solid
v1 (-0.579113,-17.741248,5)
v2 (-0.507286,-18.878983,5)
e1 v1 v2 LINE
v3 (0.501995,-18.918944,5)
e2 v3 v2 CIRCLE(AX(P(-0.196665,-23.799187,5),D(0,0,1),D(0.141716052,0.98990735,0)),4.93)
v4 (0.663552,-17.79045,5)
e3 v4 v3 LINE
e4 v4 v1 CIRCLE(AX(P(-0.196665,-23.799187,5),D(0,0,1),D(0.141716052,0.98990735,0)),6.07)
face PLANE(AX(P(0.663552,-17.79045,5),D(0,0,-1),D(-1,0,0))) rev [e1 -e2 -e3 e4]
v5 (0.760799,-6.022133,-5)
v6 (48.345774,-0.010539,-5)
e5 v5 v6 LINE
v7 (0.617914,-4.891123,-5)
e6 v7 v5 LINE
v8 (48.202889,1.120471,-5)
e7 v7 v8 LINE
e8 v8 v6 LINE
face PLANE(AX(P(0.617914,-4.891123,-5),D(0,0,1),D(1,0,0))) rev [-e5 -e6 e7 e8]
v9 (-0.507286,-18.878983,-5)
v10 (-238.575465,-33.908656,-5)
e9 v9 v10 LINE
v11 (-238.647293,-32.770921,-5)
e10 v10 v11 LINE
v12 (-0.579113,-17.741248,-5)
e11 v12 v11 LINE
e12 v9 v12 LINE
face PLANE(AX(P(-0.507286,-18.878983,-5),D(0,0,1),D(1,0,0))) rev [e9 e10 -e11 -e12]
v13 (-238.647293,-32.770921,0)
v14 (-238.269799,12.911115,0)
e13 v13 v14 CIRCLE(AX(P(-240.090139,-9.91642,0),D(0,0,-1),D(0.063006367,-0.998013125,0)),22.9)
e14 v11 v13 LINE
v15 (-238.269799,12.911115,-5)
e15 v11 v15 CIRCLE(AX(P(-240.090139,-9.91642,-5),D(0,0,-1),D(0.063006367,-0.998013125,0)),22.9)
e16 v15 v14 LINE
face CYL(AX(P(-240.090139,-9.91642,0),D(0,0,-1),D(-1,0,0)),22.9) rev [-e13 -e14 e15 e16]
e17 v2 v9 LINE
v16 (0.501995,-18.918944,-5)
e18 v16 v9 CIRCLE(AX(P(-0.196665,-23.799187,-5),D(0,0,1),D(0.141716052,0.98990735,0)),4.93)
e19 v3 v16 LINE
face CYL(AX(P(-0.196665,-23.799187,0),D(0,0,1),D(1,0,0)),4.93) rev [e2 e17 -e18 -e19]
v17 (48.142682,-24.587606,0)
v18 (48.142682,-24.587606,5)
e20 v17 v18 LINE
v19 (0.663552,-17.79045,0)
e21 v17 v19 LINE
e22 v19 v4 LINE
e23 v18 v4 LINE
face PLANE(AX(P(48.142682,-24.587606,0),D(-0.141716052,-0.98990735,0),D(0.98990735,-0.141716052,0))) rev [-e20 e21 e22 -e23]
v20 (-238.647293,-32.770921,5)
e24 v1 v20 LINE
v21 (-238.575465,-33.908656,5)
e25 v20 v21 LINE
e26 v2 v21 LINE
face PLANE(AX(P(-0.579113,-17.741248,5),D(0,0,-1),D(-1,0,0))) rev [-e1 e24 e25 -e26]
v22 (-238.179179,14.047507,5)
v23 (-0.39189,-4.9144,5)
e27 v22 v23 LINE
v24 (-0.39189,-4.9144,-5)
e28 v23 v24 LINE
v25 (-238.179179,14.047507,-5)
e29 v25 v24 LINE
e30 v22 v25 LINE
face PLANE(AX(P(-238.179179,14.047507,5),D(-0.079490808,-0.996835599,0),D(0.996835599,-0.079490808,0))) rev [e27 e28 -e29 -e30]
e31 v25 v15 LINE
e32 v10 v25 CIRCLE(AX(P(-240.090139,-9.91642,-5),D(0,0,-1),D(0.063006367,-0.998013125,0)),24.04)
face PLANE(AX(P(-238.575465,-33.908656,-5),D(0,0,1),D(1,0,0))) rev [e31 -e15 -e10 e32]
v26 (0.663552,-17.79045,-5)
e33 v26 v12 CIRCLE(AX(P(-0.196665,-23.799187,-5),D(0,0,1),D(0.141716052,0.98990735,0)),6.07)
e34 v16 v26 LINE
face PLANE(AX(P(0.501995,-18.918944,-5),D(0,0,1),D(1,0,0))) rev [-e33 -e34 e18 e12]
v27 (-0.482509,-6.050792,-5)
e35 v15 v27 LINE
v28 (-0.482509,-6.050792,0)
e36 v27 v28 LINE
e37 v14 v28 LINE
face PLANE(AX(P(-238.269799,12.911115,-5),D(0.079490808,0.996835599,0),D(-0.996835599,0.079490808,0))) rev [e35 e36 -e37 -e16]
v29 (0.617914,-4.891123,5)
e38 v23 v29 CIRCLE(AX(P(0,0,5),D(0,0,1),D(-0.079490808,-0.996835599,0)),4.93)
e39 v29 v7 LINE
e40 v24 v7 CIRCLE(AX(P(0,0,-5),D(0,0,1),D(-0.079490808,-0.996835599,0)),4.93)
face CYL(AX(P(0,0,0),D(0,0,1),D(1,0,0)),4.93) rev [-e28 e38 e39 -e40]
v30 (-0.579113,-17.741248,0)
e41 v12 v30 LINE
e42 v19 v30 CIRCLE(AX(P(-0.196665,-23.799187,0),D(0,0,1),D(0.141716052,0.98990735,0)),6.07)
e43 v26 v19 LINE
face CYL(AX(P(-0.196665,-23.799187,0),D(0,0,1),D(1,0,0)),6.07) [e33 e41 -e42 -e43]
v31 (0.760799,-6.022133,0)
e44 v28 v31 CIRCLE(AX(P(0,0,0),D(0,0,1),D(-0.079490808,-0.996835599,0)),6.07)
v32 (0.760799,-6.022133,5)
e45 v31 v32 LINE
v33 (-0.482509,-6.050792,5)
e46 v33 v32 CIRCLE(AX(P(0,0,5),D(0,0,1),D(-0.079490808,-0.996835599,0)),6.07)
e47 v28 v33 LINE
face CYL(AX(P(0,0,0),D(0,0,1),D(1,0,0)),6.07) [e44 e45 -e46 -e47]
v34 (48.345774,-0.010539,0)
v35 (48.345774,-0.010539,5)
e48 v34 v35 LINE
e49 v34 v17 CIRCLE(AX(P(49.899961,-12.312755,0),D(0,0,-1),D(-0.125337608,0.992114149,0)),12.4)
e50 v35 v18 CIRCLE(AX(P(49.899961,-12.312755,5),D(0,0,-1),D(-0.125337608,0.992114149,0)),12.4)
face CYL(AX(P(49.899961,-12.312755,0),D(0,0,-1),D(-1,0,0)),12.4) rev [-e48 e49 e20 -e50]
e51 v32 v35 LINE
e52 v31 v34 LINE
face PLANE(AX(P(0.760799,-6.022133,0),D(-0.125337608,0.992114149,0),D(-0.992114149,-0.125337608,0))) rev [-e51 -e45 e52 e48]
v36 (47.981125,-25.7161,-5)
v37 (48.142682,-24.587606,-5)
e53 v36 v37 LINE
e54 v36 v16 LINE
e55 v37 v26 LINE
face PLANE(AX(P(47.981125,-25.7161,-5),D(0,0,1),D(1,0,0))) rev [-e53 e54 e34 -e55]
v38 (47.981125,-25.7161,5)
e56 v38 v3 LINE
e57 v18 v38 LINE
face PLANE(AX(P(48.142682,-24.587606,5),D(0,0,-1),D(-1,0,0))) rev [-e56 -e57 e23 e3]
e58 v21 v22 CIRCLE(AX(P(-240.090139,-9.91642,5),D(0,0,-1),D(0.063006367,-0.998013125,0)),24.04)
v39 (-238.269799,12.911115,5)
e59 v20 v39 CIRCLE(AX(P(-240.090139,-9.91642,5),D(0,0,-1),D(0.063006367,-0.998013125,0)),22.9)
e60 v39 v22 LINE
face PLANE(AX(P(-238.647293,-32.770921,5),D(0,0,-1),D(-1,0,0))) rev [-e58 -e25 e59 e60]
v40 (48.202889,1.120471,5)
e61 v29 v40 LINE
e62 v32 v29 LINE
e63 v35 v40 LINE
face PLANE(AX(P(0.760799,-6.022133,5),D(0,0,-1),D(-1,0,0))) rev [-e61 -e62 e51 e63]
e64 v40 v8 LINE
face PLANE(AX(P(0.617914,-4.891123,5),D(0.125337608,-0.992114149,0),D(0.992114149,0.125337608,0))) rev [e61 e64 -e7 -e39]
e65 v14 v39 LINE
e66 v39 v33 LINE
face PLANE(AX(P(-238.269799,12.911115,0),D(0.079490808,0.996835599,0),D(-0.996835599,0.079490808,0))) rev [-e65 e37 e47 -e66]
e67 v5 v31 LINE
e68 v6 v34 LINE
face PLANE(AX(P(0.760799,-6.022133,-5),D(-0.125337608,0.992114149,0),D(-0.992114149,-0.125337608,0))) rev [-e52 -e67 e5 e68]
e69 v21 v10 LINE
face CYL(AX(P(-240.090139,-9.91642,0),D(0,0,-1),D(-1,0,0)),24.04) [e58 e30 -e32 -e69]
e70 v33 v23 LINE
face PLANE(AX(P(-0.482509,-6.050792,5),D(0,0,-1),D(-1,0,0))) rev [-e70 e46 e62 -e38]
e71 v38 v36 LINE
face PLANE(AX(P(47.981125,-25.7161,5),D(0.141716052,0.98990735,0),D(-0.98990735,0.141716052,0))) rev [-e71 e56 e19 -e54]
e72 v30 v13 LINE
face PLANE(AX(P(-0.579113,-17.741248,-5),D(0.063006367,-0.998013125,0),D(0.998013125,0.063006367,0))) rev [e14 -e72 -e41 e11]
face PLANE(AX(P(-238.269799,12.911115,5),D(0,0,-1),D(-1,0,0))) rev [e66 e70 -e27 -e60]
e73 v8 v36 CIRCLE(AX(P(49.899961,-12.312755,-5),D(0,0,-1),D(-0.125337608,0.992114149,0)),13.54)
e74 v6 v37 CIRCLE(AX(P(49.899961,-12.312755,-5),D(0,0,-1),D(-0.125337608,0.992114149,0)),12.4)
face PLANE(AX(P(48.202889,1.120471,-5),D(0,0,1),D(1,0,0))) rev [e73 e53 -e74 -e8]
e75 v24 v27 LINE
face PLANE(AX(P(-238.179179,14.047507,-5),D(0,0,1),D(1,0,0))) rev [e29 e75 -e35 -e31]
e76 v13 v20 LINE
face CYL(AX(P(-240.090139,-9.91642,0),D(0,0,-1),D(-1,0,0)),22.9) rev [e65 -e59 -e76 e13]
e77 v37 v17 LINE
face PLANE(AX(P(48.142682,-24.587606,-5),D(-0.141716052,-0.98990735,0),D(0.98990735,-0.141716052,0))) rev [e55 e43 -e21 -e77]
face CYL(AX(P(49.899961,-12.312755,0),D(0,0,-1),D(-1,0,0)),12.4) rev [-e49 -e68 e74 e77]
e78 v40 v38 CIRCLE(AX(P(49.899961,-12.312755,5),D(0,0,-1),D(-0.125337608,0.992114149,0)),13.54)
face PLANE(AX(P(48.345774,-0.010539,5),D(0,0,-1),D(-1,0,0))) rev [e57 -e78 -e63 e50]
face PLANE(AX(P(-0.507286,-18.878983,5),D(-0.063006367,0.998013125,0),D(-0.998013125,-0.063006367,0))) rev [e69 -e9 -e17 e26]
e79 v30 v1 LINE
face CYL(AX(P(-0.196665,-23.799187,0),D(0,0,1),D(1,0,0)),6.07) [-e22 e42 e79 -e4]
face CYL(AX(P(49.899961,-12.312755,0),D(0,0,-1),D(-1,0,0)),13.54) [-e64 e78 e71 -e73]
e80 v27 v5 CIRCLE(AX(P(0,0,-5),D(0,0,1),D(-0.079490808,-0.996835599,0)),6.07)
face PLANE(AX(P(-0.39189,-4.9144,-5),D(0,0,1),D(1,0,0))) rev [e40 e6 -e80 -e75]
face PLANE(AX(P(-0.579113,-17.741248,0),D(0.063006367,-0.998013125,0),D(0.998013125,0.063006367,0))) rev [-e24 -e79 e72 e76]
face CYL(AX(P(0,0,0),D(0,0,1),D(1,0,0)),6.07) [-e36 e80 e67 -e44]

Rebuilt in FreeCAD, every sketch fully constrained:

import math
import FreeCAD as App
import Part
import Sketcher

V = App.Vector

doc = App.newDocument("Part")
body = doc.addObject("PartDesign::Body", "Body")

sketch1 = doc.addObject("Sketcher::SketchObject", "Sketch")
body.addObject(sketch1)
sketch1.Placement = App.Placement(V(-238.269799, 12.911115, 0), App.Rotation(V(0, 0, 1), V(0.079490808, 0.996835599, 0), V(-0.996835599, 0.079490808, 0), "ZXY"))
sketch1.addGeometry([
    Part.LineSegment(V(5, 0, 0), V(5, 1.1, 0)),
    Part.LineSegment(V(5, 1.1, 0), V(-5, 1.1, 0)),
    Part.LineSegment(V(-5, 1.1, 0), V(-5, 0, 0)),
    Part.LineSegment(V(-5, 0, 0), V(5, 0, 0)),
], False)
sketch1.addConstraint([
    Sketcher.Constraint("Coincident", 0, 2, 1, 1),
    Sketcher.Constraint("Coincident", 1, 2, 2, 1),
    Sketcher.Constraint("Coincident", 2, 2, 3, 1),
    Sketcher.Constraint("Coincident", 3, 2, 0, 1),
    Sketcher.Constraint("Vertical", 0),
    Sketcher.Constraint("Horizontal", 1),
    Sketcher.Constraint("Vertical", 2),
    Sketcher.Constraint("Horizontal", 3),
    Sketcher.Constraint("Symmetric", 2, 2, 3, 2, -1, 1),
    Sketcher.Constraint("DistanceX", 1, 2, 1, 1, 10.0),
    Sketcher.Constraint("DistanceY", 0, 1, 0, 2, 1.14),
])

sketch2 = doc.addObject("Sketcher::SketchObject", "Sketch001")
body.addObject(sketch2)
sketch2.AttachmentSupport = (doc.XY_Plane, [""])
sketch2.MapMode = "FlatFace"
sketch2.addGeometry([
    Part.LineSegment(V(0.8, -6, 0), V(48.3, 0, 0)),
    Part.ArcOfCircle(Part.Circle(V(49.9, -12.3, 0), V(0, 0, 1), 12.4), math.radians(-98), math.radians(97)),
    Part.LineSegment(V(48.1, -24.6, 0), V(0.7, -17.8, 0)),
    Part.ArcOfCircle(Part.Circle(V(-0.2, -23.8, 0), V(0, 0, 1), 6.1), math.radians(81.85), math.radians(93.61)),
    Part.LineSegment(V(-0.6, -17.7, 0), V(-238.6, -32.8, 0)),
    Part.ArcOfCircle(Part.Circle(V(-240.1, -9.9, 0), V(0, 0, 1), 22.9), math.radians(85), math.radians(274)),
    Part.LineSegment(V(-238.3, 12.9, 0), V(-0.5, -6.1, 0)),
    Part.ArcOfCircle(Part.Circle(V(0, 0, 0), V(0, 0, 1), 6.1), math.radians(-94.56), math.radians(-82.8)),
], False)
sketch2.addConstraint([
    Sketcher.Constraint("Tangent", 0, 2, 1, 2),
    Sketcher.Constraint("Tangent", 1, 1, 2, 1),
    Sketcher.Constraint("Tangent", 2, 2, 3, 1),
    Sketcher.Constraint("Tangent", 3, 2, 4, 1),
    Sketcher.Constraint("Tangent", 4, 2, 5, 2),
    Sketcher.Constraint("Tangent", 5, 1, 6, 1),
    Sketcher.Constraint("Tangent", 6, 2, 7, 1),
    Sketcher.Constraint("Tangent", 7, 2, 0, 1),
    Sketcher.Constraint("Coincident", 7, 3, -1, 1),
    Sketcher.Constraint("Equal", 3, 7),
    Sketcher.Constraint("Equal", 0, 2),
    Sketcher.Constraint("Equal", 4, 6),
    Sketcher.Constraint("Radius", 1, 12.4),
    Sketcher.Constraint("Radius", 5, 22.9),
    Sketcher.Constraint("Radius", 3, 6.07),
    Sketcher.Constraint("DistanceX", 5, 1, -1, 1, 238.269799),
    Sketcher.Constraint("DistanceX", -1, 1, 7, 2, 0.760799),
    Sketcher.Constraint("DistanceX", 5, 3, 1, 3, 289.990099),
    Sketcher.Constraint("DistanceX", -1, 1, 1, 3, 49.899961),
])
doc.recompute()

additivepipe = doc.addObject("PartDesign::AdditivePipe", "AdditivePipe")
body.addObject(additivepipe)
additivepipe.Profile = sketch1
additivepipe.Spine = (sketch2, ["Edge1", "Edge2", "Edge3", "Edge4", "Edge5", "Edge6", "Edge7", "Edge8"])

doc.recompute()
